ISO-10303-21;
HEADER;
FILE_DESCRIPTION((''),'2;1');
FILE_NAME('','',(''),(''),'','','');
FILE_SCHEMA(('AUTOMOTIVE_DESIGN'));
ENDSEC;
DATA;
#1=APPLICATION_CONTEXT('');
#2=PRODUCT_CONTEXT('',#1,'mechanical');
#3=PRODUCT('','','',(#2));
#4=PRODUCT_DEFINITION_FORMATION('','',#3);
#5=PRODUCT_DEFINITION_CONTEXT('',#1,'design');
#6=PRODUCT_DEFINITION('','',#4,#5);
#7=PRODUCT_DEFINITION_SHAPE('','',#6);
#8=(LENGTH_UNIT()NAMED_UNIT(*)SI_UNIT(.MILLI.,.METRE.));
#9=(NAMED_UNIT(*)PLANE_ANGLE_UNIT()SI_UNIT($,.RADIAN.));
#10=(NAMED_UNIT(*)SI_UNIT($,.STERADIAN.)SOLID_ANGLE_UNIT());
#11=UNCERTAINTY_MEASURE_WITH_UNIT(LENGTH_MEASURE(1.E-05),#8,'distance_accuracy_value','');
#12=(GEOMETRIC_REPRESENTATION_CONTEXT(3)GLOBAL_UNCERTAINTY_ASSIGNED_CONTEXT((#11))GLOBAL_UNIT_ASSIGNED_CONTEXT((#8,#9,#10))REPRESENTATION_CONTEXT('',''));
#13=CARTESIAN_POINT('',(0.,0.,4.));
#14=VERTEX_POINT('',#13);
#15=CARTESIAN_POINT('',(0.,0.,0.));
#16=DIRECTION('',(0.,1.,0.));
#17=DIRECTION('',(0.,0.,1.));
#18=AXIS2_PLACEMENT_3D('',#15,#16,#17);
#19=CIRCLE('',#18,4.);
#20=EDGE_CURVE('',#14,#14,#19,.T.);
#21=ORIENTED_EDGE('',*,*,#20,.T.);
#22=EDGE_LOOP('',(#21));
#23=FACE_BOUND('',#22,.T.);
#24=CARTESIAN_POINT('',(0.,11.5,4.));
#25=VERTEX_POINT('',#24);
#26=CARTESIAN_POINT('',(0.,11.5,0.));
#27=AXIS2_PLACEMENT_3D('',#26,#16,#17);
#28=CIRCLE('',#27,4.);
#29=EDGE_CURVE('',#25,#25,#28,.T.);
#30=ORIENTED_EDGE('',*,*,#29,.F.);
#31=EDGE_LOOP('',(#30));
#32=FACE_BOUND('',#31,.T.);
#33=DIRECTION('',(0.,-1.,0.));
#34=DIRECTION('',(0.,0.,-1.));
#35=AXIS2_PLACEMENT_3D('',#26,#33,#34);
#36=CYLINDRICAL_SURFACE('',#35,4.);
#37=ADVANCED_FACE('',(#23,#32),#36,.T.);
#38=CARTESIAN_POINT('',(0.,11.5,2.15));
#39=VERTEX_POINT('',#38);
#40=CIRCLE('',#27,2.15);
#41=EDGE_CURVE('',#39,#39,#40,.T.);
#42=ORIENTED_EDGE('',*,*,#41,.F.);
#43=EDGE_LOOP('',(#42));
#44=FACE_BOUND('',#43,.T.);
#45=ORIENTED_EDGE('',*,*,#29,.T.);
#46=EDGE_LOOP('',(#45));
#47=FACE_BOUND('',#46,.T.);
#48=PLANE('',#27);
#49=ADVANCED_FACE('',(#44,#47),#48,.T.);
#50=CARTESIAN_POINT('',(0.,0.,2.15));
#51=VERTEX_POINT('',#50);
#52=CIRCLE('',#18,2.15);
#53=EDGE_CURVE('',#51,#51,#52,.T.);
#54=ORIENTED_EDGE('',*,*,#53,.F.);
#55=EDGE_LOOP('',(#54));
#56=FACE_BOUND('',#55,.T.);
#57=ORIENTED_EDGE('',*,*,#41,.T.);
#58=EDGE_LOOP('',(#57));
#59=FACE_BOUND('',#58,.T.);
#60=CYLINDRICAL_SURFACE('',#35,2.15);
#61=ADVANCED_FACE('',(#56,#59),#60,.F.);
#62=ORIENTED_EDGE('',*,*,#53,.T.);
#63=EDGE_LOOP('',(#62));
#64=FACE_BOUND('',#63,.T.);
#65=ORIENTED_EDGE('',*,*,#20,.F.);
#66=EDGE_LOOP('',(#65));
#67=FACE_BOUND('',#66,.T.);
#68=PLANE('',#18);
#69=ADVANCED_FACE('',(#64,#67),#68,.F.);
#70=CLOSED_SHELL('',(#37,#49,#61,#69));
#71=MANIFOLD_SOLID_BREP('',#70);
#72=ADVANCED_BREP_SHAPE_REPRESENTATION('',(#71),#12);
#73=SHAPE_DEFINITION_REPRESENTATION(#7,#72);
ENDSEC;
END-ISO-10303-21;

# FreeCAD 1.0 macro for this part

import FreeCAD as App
import Part
import Sketcher

doc = App.newDocument("Part")
params = doc.addObject("Spreadsheet::Sheet", "Params")
for row, (alias, value) in enumerate([
    ("sketch1_diameter", "8 mm"),
    ("sketch1_diameter2", "4.3 mm"),
    ("pad1_length", "11.5 mm"),
], start=1):
    params.set(f"A{row}", alias)
    params.set(f"B{row}", "=" + value)
    params.setAlias(f"B{row}", alias)

body = doc.addObject("PartDesign::Body", "Body")

# Sketch on XZ plane
sketch1 = body.newObject("Sketcher::SketchObject", "Sketch")
sketch1.AttachmentSupport = (doc.getObject("XZ_Plane"), [""])
sketch1.MapMode = "FlatFace"
sketch1.addGeometry([
    Part.Circle(App.Vector(0, 0, 0), App.Vector(0, 0, 1), 4),
    Part.Circle(App.Vector(0, 0, 0), App.Vector(0, 0, 1), 2.1),
], False)
sketch1.addConstraint([
    Sketcher.Constraint("Coincident", 0, 3, -1, 1),
    Sketcher.Constraint("Coincident", 1, 3, -1, 1),
    Sketcher.Constraint("Diameter", 0, 8.0),
    Sketcher.Constraint("Diameter", 1, 4.3),
])
sketch1.setExpression("Constraints[2]", "Params.sketch1_diameter")
sketch1.setExpression("Constraints[3]", "Params.sketch1_diameter2")
pad1 = body.newObject("PartDesign::Pad", "Pad")
pad1.Profile = sketch1
pad1.setExpression("Length", "Params.pad1_length")
pad1.Reversed = True

doc.recompute()
